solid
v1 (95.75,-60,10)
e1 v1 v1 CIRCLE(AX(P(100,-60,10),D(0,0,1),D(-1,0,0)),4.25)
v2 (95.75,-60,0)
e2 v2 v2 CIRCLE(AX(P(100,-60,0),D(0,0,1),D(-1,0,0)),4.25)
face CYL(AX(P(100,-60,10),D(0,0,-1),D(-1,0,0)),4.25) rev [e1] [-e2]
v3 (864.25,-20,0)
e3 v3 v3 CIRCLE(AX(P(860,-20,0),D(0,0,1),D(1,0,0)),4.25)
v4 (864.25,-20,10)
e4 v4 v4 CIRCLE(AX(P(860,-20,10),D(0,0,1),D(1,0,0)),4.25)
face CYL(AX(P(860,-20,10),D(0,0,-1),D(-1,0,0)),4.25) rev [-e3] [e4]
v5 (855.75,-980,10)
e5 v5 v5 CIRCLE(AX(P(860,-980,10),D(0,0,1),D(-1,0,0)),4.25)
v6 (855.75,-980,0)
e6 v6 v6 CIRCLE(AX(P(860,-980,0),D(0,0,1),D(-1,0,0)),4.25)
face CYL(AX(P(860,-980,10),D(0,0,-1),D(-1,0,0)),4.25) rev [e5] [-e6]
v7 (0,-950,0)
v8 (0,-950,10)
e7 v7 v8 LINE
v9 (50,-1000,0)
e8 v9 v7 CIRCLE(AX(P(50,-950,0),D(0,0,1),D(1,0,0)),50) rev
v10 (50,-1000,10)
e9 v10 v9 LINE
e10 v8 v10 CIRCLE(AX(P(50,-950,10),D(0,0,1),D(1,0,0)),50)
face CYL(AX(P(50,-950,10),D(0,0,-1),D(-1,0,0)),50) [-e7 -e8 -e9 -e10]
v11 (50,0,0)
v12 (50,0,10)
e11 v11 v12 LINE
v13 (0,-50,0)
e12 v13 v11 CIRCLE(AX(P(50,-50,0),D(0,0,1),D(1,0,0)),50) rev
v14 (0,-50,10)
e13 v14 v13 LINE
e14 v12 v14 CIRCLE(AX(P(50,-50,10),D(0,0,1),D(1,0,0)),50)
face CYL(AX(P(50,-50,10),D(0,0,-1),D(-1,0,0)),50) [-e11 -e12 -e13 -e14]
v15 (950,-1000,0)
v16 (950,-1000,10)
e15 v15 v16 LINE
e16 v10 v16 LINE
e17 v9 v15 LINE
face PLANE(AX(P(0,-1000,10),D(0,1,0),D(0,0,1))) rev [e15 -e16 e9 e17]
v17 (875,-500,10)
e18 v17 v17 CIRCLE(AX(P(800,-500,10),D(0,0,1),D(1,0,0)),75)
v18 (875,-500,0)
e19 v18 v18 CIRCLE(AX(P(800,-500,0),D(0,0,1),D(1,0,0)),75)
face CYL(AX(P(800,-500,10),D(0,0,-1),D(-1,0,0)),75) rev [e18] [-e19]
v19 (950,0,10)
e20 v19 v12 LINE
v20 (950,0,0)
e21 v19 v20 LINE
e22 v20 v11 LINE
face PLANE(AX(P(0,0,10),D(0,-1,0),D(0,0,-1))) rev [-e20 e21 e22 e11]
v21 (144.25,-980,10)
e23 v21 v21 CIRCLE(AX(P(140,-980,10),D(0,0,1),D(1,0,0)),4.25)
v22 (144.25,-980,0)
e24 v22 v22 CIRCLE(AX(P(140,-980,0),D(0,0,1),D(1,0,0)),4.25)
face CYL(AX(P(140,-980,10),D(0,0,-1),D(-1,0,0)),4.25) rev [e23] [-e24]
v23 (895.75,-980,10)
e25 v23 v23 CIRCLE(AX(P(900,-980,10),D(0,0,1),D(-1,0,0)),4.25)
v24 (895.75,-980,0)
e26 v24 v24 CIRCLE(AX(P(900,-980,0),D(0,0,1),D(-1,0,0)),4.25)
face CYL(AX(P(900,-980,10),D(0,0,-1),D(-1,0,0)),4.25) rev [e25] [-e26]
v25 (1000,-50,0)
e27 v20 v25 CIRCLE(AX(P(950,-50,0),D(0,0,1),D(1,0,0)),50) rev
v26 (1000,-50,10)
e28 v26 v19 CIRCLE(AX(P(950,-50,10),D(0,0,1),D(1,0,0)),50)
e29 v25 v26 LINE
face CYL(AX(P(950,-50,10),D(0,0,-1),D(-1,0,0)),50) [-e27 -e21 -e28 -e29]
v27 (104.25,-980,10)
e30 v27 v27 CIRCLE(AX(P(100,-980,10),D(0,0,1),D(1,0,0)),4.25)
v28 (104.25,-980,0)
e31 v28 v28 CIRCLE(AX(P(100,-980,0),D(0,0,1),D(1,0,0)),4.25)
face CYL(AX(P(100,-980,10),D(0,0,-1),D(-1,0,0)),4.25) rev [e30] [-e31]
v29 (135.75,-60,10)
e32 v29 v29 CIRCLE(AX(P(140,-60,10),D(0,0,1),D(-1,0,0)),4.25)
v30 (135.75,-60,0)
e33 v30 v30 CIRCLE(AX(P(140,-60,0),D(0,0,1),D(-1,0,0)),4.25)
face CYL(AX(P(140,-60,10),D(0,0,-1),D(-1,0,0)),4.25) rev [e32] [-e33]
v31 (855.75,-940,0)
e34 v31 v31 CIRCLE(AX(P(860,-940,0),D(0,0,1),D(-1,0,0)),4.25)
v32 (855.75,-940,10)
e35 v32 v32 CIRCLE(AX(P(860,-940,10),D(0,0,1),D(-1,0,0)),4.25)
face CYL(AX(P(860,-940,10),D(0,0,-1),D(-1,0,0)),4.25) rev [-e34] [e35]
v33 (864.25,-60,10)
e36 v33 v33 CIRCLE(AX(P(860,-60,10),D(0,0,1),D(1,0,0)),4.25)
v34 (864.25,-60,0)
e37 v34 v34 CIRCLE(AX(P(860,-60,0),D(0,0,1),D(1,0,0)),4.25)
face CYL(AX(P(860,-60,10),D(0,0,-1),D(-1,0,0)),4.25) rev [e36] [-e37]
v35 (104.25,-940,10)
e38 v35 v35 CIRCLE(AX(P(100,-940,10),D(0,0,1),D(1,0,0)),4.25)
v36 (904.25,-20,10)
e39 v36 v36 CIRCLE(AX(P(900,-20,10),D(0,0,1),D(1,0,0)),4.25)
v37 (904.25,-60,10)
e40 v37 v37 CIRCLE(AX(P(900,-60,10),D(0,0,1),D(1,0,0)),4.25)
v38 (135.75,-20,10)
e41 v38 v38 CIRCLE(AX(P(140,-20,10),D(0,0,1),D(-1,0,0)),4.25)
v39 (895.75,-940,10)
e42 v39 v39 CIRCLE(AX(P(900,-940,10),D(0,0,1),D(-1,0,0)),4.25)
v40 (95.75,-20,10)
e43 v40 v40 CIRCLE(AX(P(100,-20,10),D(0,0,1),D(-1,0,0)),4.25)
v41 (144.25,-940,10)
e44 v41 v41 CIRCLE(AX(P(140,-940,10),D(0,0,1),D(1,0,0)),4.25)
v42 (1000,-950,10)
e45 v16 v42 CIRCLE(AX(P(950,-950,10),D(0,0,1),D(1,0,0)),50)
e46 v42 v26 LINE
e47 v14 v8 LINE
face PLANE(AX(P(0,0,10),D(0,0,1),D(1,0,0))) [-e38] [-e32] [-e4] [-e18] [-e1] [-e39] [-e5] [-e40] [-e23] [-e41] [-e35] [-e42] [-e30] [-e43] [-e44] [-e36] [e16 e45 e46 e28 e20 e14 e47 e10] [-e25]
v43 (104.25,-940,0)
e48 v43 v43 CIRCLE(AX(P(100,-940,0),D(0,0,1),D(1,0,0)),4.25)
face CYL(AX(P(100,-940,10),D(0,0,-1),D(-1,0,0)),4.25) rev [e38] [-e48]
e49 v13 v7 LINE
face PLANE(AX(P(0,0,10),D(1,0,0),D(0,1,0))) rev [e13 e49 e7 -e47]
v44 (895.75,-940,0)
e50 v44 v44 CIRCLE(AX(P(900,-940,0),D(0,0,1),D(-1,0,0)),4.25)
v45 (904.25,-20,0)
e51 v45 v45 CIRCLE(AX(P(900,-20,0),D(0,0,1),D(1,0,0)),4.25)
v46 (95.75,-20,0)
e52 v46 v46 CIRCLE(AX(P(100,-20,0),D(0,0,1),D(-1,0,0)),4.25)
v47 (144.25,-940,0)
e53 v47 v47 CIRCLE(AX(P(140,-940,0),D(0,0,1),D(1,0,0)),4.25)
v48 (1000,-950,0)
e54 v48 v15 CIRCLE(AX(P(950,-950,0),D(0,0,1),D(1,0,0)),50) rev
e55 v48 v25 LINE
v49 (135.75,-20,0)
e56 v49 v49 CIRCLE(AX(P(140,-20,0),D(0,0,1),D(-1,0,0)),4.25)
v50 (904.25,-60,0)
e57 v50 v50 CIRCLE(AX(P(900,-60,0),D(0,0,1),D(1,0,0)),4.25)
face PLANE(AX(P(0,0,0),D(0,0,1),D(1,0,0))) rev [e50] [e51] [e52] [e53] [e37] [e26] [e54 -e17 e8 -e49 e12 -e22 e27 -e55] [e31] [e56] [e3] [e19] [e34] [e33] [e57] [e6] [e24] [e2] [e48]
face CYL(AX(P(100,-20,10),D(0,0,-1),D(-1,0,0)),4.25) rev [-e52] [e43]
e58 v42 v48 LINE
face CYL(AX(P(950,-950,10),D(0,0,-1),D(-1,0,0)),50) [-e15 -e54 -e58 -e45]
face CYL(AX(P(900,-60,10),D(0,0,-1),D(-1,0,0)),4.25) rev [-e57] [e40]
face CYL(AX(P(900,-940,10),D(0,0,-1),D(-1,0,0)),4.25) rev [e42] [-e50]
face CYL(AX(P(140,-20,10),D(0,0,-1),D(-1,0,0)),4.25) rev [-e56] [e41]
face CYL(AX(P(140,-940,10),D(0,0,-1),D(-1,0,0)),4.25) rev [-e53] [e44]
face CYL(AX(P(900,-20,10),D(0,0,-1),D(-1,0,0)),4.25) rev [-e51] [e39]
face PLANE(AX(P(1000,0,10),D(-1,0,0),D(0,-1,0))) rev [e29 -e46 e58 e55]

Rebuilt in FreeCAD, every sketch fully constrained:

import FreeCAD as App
import Part
import Sketcher
from FreeCAD import Vector


def edges_at(feature, points):
    """Names of the edges that pass closest to the given points."""
    edges = feature.Shape.Edges
    near = lambda p: min(range(len(edges)), key=lambda i: edges[i].distToShape(Part.Vertex(*p))[0])
    return sorted({f"Edge{near(p) + 1}" for p in points})


def add_polygon(sketch, points):
    """Adds a closed chain of lines whose ends are joined by coincident constraints."""
    first, n = sketch.GeometryCount, len(points)
    for a, b in zip(points, points[1:] + points[:1]):
        sketch.addGeometry(Part.LineSegment(App.Vector(*a, 0), App.Vector(*b, 0)), False)
    for i in range(n):
        sketch.addConstraint(Sketcher.Constraint("Coincident", first + i, 2, first + (i + 1) % n, 1))

doc = App.newDocument("Part")
body = doc.addObject("PartDesign::Body", "Body")

sketch1 = body.newObject("Sketcher::SketchObject", "Sketch")
sketch1.AttachmentSupport = (doc.getObject("XY_Plane"), [""])
sketch1.MapMode = "FlatFace"
add_polygon(sketch1, [(0, 0), (0, -1000), (1000, -1000), (1000, 0)])
sketch1.addGeometry(Part.Circle(Vector(100, -980, 0), Vector(0, 0, 1), 4.2), False)
sketch1.addGeometry(Part.Circle(Vector(140, -980, 0), Vector(0, 0, 1), 4.2), False)
sketch1.addGeometry(Part.Circle(Vector(100, -940, 0), Vector(0, 0, 1), 4.2), False)
sketch1.addGeometry(Part.Circle(Vector(140, -940, 0), Vector(0, 0, 1), 4.2), False)
sketch1.addGeometry(Part.Circle(Vector(860, -980, 0), Vector(0, 0, 1), 4.2), False)
sketch1.addGeometry(Part.Circle(Vector(900, -980, 0), Vector(0, 0, 1), 4.2), False)
sketch1.addGeometry(Part.Circle(Vector(860, -940, 0), Vector(0, 0, 1), 4.2), False)
sketch1.addGeometry(Part.Circle(Vector(900, -940, 0), Vector(0, 0, 1), 4.2), False)
sketch1.addGeometry(Part.Circle(Vector(100, -60, 0), Vector(0, 0, 1), 4.2), False)
sketch1.addGeometry(Part.Circle(Vector(140, -60, 0), Vector(0, 0, 1), 4.2), False)
sketch1.addGeometry(Part.Circle(Vector(100, -20, 0), Vector(0, 0, 1), 4.2), False)
sketch1.addGeometry(Part.Circle(Vector(140, -20, 0), Vector(0, 0, 1), 4.2), False)
sketch1.addGeometry(Part.Circle(Vector(800, -500, 0), Vector(0, 0, 1), 75), False)
sketch1.addGeometry(Part.Circle(Vector(860, -60, 0), Vector(0, 0, 1), 4.2), False)
sketch1.addGeometry(Part.Circle(Vector(900, -60, 0), Vector(0, 0, 1), 4.2), False)
sketch1.addGeometry(Part.Circle(Vector(860, -20, 0), Vector(0, 0, 1), 4.2), False)
sketch1.addGeometry(Part.Circle(Vector(900, -20, 0), Vector(0, 0, 1), 4.2), False)
sketch1.addConstraint([
    Sketcher.Constraint("Vertical", 0),
    Sketcher.Constraint("Horizontal", 1),
    Sketcher.Constraint("Vertical", 2),
    Sketcher.Constraint("Horizontal", 3),
    Sketcher.Constraint("Coincident", 3, 2, -1, 1),
    Sketcher.Constraint("Equal", 4, 5),
    Sketcher.Constraint("Equal", 5, 6),
    Sketcher.Constraint("Equal", 6, 7),
    Sketcher.Constraint("Equal", 7, 8),
    Sketcher.Constraint("Equal", 8, 9),
    Sketcher.Constraint("Equal", 9, 10),
    Sketcher.Constraint("Equal", 10, 11),
    Sketcher.Constraint("Equal", 11, 12),
    Sketcher.Constraint("Equal", 12, 13),
    Sketcher.Constraint("Equal", 13, 14),
    Sketcher.Constraint("Equal", 14, 15),
    Sketcher.Constraint("Equal", 15, 17),
    Sketcher.Constraint("Equal", 17, 18),
    Sketcher.Constraint("Equal", 18, 19),
    Sketcher.Constraint("Equal", 19, 20),
    Sketcher.Constraint("Horizontal", 4, 3, 5, 3),
    Sketcher.Constraint("Horizontal", 6, 3, 7, 3),
    Sketcher.Constraint("Horizontal", 5, 3, 8, 3),
    Sketcher.Constraint("Horizontal", 8, 3, 9, 3),
    Sketcher.Constraint("Horizontal", 7, 3, 10, 3),
    Sketcher.Constraint("Horizontal", 10, 3, 11, 3),
    Sketcher.Constraint("Horizontal", 12, 3, 13, 3),
    Sketcher.Constraint("Horizontal", 14, 3, 15, 3),
    Sketcher.Constraint("Horizontal", 13, 3, 17, 3),
    Sketcher.Constraint("Horizontal", 17, 3, 18, 3),
    Sketcher.Constraint("Horizontal", 15, 3, 19, 3),
    Sketcher.Constraint("Horizontal", 19, 3, 20, 3),
    Sketcher.Constraint("Vertical", 4, 3, 6, 3),
    Sketcher.Constraint("Vertical", 5, 3, 7, 3),
    Sketcher.Constraint("Vertical", 8, 3, 10, 3),
    Sketcher.Constraint("Vertical", 9, 3, 11, 3),
    Sketcher.Constraint("Vertical", 6, 3, 12, 3),
    Sketcher.Constraint("Vertical", 7, 3, 13, 3),
    Sketcher.Constraint("Vertical", 12, 3, 14, 3),
    Sketcher.Constraint("Vertical", 13, 3, 15, 3),
    Sketcher.Constraint("Vertical", 10, 3, 17, 3),
    Sketcher.Constraint("Vertical", 11, 3, 18, 3),
    Sketcher.Constraint("Vertical", 17, 3, 19, 3),
    Sketcher.Constraint("Vertical", 18, 3, 20, 3),
    Sketcher.Constraint("Equal", 3, 0),
    Sketcher.Constraint("Diameter", 16, 150.0),
    Sketcher.Constraint("Diameter", 4, 8.5),
    Sketcher.Constraint("DistanceX", 1, 1, 1, 2, 1000.0),
    Sketcher.Constraint("DistanceX", -1, 1, 4, 3, 100.0),
    Sketcher.Constraint("DistanceY", 4, 3, -1, 1, 980.0),
    Sketcher.Constraint("DistanceX", -1, 1, 5, 3, 140.0),
    Sketcher.Constraint("DistanceY", 6, 3, -1, 1, 940.0),
    Sketcher.Constraint("DistanceX", -1, 1, 8, 3, 860.0),
    Sketcher.Constraint("DistanceX", -1, 1, 9, 3, 900.0),
    Sketcher.Constraint("DistanceY", 12, 3, -1, 1, 60.0),
    Sketcher.Constraint("DistanceY", 14, 3, -1, 1, 20.0),
    Sketcher.Constraint("DistanceX", -1, 1, 16, 3, 800.0),
    Sketcher.Constraint("DistanceY", 16, 3, -1, 1, 500.0),
])
pad1 = body.newObject("PartDesign::Pad", "Pad")
pad1.Profile = sketch1
pad1.Length = 10
doc.recompute()

fillet = body.newObject("PartDesign::Fillet", "Fillet")
fillet.Base = (pad1, edges_at(pad1, [
    (0, 0, 5),
    (1000, 0, 5),
    (1000, -1000, 5),
    (0, -1000, 5),
]))
fillet.Radius = 50

doc.recompute()
